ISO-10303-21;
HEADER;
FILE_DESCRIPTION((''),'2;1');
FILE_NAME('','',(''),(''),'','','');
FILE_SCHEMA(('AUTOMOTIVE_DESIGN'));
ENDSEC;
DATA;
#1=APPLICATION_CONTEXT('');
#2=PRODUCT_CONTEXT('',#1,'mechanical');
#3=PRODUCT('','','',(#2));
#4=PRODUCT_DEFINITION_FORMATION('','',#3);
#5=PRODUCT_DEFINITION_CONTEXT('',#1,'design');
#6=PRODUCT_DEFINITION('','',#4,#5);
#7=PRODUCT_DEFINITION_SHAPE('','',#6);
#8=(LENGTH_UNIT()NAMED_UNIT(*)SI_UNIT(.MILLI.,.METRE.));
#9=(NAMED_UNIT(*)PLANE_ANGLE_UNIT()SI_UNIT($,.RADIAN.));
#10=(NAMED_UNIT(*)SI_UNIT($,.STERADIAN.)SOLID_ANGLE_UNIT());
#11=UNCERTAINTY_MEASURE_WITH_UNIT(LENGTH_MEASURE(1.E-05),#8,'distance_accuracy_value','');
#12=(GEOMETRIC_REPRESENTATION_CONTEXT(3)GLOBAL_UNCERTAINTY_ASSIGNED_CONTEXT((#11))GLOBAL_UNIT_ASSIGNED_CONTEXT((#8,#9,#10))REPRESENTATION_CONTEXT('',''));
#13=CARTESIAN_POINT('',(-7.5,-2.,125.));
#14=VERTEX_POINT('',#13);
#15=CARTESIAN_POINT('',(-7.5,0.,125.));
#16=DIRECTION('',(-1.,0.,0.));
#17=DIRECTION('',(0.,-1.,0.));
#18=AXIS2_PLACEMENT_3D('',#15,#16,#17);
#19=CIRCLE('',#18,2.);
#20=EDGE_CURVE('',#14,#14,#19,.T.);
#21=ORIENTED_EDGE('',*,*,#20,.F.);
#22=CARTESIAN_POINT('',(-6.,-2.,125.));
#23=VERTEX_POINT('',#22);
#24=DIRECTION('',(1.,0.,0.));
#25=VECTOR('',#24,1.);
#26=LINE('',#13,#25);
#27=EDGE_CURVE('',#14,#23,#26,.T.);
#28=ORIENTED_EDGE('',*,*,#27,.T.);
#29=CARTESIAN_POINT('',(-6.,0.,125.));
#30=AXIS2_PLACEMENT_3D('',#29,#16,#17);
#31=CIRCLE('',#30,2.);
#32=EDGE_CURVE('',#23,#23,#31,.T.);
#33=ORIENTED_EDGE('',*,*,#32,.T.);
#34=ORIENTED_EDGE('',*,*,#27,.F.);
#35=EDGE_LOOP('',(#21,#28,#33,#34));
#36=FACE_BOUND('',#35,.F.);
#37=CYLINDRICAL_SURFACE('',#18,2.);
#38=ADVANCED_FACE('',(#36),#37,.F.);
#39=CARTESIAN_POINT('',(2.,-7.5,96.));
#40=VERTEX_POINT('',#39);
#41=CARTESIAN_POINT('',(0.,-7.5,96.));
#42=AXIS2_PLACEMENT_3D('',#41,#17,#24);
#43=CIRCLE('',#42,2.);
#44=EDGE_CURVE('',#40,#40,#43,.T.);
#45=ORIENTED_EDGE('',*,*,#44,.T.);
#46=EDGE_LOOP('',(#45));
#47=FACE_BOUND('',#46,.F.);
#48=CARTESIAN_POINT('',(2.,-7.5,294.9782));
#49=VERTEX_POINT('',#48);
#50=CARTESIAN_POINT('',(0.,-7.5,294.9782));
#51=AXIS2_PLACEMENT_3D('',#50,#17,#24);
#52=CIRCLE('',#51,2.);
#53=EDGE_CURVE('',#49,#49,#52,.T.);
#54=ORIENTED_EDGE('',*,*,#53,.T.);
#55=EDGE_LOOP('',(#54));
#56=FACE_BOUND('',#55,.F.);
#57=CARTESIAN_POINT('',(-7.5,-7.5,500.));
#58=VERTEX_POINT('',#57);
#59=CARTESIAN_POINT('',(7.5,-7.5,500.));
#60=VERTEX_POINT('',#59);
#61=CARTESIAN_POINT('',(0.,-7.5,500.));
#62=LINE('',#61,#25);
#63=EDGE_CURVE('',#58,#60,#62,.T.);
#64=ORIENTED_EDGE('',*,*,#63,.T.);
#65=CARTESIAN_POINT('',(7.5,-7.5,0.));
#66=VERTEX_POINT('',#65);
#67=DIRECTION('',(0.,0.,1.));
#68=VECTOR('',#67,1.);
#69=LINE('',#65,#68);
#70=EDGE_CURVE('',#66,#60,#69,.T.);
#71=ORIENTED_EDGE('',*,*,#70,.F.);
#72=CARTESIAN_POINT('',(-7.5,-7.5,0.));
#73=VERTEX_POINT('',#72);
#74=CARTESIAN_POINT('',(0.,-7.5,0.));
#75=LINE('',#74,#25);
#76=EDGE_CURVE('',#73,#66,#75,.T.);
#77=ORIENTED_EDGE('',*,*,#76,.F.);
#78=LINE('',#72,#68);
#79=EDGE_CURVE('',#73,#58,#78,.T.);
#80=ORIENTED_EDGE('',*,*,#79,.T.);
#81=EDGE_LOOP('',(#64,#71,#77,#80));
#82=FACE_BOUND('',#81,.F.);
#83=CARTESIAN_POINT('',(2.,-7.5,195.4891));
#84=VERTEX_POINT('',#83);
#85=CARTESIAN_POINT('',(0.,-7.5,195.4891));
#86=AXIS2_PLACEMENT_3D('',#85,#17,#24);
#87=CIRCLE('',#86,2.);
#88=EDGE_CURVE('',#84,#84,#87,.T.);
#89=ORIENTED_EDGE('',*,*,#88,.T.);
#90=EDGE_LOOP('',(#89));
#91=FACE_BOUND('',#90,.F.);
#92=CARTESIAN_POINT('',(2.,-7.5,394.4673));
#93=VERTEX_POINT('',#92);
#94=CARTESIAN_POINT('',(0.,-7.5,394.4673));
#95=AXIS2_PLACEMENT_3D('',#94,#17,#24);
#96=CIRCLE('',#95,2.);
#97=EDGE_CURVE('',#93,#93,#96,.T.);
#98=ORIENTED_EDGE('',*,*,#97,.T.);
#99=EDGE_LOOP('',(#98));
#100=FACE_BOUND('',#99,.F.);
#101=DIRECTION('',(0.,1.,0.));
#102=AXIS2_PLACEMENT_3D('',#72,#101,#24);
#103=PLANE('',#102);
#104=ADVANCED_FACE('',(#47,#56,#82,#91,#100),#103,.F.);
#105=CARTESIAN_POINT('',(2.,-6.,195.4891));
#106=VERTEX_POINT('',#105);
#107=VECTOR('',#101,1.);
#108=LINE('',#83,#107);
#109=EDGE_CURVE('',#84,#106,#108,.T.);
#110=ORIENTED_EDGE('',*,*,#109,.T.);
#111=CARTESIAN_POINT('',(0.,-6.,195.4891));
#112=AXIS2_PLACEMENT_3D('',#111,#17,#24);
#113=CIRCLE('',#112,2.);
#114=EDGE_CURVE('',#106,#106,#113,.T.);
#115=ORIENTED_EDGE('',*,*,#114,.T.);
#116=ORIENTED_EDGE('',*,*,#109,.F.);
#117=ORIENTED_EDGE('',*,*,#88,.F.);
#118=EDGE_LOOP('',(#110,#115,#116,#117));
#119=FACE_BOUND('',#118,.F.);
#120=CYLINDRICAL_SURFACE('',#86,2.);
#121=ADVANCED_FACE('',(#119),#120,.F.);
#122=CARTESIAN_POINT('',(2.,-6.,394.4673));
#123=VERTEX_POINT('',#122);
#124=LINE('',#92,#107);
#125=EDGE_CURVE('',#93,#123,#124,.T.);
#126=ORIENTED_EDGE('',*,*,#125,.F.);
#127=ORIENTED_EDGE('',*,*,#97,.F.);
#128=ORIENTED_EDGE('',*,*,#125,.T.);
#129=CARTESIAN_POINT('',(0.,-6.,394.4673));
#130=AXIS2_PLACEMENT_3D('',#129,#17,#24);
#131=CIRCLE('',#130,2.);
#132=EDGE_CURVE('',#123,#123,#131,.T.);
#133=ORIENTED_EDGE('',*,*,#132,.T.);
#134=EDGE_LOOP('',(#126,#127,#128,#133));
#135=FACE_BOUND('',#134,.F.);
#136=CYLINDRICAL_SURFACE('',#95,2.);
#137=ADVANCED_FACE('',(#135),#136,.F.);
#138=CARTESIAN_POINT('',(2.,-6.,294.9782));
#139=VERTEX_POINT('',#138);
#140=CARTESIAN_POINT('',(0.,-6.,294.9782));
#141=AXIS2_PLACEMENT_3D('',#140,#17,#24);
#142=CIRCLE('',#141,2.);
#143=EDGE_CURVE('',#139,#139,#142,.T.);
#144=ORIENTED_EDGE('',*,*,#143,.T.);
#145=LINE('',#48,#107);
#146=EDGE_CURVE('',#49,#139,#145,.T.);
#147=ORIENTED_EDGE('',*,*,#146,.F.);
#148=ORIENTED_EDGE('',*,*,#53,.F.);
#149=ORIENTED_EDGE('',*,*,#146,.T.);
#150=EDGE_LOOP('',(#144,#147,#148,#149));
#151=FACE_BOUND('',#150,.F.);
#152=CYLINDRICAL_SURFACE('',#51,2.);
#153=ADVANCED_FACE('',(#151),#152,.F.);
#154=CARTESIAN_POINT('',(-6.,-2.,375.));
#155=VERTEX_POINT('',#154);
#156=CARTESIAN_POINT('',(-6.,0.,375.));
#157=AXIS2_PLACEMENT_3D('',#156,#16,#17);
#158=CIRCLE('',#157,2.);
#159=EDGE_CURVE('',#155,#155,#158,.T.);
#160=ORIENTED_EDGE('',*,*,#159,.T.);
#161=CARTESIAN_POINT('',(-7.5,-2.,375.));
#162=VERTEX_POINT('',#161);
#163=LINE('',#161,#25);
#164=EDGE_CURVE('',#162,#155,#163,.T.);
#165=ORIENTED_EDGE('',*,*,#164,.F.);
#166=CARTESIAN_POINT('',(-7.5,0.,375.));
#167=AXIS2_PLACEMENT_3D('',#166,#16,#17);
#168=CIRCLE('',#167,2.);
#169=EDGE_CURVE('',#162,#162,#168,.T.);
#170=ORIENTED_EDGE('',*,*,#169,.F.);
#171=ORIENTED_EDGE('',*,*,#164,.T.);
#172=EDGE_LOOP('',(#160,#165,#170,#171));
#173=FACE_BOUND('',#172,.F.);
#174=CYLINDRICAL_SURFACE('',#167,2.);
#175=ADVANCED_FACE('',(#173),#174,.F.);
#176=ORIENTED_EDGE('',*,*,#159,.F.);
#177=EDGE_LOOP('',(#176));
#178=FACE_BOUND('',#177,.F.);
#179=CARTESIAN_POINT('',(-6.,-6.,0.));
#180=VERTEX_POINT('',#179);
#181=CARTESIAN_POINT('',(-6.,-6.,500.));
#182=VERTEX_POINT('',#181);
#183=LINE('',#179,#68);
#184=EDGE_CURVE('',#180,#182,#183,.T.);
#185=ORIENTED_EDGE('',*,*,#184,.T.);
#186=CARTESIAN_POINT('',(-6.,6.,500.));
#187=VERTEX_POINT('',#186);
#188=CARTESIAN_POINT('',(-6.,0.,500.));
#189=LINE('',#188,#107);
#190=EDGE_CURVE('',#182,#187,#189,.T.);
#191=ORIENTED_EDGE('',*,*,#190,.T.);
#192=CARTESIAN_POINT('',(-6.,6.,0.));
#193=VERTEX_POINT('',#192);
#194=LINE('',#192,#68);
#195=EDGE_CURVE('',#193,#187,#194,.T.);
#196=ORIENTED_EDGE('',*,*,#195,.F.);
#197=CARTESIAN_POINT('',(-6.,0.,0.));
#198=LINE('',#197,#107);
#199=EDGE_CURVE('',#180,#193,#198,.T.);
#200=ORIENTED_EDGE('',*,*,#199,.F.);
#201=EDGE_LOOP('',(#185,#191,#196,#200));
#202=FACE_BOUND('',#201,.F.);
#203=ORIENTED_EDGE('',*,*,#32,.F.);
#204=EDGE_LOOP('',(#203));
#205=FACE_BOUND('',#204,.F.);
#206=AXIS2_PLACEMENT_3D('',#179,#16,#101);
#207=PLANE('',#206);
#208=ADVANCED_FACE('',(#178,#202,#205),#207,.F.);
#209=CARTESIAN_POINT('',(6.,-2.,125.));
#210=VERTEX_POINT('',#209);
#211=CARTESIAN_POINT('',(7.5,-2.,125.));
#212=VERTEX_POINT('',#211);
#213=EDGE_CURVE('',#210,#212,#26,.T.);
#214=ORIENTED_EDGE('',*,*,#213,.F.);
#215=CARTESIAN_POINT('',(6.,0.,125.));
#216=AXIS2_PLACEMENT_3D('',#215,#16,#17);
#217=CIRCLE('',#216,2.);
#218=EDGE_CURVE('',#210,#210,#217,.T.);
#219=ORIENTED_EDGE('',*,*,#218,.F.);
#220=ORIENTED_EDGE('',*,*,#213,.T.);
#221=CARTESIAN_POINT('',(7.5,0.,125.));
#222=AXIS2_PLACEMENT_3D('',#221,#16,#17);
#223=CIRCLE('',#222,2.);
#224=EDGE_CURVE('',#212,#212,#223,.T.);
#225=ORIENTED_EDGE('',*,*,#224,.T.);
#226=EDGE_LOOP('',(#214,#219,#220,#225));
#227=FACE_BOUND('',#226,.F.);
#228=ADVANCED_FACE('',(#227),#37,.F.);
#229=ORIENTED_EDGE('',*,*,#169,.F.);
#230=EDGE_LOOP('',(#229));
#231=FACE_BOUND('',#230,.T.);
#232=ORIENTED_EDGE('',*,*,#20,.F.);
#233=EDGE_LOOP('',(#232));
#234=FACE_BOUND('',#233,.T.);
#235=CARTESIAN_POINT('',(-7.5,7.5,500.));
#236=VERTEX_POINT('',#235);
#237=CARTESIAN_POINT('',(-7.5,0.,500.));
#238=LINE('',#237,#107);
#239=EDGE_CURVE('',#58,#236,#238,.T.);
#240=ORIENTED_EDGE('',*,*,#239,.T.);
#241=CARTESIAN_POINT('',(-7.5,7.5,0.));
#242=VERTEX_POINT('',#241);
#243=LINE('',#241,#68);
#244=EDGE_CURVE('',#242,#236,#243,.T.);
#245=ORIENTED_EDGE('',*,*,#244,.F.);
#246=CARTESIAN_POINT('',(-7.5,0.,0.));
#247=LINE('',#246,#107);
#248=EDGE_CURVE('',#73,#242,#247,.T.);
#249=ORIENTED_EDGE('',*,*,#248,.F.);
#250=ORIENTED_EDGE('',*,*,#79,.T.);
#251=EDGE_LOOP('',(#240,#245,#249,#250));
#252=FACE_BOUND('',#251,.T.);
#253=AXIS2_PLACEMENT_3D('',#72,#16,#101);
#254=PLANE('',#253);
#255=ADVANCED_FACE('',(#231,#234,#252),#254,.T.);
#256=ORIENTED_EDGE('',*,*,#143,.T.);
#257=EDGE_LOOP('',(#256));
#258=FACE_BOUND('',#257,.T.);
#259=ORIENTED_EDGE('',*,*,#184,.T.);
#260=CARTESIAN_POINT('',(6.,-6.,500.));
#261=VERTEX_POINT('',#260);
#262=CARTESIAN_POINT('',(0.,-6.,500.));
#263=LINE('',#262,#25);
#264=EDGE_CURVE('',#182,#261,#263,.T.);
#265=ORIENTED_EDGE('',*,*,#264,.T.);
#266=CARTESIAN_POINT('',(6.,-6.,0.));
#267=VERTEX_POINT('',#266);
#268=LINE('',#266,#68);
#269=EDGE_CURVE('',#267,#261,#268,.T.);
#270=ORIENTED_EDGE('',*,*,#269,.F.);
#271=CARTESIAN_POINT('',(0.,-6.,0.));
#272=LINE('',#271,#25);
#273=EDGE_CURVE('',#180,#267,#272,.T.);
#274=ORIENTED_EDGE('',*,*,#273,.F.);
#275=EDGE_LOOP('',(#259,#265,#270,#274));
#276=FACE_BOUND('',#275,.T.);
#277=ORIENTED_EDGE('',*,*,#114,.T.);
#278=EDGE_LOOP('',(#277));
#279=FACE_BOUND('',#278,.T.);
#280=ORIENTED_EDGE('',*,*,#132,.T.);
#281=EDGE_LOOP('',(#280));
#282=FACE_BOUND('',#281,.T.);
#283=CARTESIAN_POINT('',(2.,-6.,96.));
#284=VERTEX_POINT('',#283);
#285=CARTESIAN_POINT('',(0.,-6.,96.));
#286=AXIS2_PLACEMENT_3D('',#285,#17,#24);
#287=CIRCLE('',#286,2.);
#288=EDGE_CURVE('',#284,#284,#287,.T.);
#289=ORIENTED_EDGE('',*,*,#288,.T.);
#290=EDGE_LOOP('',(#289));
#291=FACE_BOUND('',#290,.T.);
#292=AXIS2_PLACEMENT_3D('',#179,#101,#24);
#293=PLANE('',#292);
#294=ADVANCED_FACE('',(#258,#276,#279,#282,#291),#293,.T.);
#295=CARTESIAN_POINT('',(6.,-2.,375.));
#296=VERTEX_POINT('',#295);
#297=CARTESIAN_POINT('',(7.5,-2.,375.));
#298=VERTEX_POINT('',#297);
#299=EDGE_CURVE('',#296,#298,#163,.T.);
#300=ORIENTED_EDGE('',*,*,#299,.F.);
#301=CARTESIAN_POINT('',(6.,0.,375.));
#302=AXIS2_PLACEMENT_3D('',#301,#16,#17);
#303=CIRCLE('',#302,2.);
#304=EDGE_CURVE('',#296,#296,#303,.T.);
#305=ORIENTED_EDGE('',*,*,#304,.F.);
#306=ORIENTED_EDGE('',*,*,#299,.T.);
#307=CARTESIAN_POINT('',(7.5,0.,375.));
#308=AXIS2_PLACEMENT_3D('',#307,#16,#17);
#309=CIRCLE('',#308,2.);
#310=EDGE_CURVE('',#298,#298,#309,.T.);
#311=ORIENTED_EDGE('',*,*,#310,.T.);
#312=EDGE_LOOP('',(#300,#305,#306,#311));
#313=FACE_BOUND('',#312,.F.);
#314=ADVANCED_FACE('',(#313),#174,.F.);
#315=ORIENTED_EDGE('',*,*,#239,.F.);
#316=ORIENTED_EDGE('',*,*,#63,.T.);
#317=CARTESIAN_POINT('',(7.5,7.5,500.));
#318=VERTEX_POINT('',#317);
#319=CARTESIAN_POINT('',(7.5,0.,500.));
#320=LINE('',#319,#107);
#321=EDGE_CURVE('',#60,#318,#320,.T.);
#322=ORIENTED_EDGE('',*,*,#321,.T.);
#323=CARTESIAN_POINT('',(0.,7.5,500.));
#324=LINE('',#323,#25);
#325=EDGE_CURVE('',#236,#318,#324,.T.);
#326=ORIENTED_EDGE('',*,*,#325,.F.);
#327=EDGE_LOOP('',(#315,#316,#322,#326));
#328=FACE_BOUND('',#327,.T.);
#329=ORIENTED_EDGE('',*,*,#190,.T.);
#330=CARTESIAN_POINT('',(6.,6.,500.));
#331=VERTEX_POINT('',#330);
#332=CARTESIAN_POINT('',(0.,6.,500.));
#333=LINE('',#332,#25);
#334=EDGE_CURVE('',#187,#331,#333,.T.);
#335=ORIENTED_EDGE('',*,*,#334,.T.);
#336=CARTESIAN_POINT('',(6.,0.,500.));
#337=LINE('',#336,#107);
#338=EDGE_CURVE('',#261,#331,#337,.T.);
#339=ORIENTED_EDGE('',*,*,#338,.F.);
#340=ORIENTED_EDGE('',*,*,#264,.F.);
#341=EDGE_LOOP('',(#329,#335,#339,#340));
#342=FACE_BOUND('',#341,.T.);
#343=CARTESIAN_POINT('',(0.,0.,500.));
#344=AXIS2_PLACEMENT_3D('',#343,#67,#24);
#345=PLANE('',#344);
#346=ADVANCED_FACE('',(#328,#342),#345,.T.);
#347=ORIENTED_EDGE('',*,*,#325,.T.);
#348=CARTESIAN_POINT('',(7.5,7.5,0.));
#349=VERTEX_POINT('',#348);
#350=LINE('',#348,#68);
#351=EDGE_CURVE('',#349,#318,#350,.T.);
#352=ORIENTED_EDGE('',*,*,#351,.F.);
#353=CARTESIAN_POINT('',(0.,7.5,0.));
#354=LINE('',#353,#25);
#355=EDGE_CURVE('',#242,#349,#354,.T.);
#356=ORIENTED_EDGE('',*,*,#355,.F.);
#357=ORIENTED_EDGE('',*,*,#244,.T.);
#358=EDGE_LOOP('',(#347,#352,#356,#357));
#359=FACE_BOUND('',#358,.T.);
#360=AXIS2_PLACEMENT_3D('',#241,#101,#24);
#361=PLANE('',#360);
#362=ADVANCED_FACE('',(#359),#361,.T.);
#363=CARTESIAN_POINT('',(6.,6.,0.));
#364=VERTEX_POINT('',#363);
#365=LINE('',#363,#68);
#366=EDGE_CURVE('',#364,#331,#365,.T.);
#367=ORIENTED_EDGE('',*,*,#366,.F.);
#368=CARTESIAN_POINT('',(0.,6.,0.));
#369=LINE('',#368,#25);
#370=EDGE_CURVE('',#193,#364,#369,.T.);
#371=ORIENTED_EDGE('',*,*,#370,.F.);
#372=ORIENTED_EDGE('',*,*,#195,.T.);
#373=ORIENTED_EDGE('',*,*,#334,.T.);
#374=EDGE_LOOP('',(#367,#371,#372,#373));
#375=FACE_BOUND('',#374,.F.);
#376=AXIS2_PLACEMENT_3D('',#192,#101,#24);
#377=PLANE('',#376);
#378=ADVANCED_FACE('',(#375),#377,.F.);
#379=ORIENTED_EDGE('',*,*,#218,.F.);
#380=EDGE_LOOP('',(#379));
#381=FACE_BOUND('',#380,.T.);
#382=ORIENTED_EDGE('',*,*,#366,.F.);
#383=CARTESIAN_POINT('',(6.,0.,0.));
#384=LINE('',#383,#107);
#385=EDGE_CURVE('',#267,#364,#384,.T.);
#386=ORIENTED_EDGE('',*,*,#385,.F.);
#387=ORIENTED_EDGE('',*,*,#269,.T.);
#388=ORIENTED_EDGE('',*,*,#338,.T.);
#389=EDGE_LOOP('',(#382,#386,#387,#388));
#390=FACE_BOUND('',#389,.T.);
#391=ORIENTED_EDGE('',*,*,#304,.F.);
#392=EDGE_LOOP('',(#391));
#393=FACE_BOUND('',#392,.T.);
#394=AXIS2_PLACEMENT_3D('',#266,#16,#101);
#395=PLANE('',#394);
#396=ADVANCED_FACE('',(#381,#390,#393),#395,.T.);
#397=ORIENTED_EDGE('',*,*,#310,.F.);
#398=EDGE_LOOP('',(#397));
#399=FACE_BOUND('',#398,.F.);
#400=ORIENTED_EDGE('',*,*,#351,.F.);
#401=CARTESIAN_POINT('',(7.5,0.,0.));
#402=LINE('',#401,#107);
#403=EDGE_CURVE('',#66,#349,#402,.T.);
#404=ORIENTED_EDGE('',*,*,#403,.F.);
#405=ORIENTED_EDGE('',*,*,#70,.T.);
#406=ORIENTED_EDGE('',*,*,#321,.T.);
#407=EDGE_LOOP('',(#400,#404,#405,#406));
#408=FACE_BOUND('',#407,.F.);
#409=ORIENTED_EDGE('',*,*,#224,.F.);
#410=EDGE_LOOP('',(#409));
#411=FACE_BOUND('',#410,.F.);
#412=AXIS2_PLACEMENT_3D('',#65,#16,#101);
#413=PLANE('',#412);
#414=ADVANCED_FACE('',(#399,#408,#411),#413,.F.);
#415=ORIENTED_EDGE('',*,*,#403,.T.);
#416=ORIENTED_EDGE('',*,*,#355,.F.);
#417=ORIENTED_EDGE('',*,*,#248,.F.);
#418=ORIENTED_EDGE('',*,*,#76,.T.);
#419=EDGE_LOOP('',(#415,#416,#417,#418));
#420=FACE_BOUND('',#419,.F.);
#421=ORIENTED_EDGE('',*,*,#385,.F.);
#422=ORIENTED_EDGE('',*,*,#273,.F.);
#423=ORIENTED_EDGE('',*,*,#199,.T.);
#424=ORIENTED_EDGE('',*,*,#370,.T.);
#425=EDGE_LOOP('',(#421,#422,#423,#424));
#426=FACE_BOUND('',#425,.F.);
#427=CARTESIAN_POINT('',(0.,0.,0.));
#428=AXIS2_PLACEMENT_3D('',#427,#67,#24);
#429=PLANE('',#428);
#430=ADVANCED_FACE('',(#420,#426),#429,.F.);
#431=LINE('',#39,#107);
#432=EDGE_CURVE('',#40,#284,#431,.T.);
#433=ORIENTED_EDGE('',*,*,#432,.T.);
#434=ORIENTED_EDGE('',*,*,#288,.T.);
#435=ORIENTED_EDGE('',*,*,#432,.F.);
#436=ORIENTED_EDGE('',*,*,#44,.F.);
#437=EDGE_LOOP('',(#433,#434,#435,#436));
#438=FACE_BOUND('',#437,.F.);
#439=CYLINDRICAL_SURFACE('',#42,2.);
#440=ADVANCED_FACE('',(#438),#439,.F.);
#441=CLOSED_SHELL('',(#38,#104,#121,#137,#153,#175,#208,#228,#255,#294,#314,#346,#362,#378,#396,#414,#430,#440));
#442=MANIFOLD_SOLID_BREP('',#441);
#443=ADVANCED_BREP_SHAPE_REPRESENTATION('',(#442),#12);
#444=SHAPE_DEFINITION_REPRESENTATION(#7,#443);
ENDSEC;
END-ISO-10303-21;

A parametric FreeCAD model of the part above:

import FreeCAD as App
import Part
import Sketcher

V = App.Vector


def add_polygon(sketch, points):
    """Adds a closed chain of lines whose ends are joined by coincident constraints."""
    first, n = sketch.GeometryCount, len(points)
    for a, b in zip(points, points[1:] + points[:1]):
        sketch.addGeometry(Part.LineSegment(App.Vector(*a, 0), App.Vector(*b, 0)), False)
    for i in range(n):
        sketch.addConstraint(Sketcher.Constraint("Coincident", first + i, 2, first + (i + 1) % n, 1))

doc = App.newDocument("Part")
body = doc.addObject("PartDesign::Body", "Body")

sketch1 = body.newObject("Sketcher::SketchObject", "Sketch")
sketch1.AttachmentSupport = (doc.getObject("XY_Plane"), [""])
sketch1.MapMode = "FlatFace"
add_polygon(sketch1, [(-8, 8), (-8, -8), (8, -8), (8, 8)])
add_polygon(sketch1, [(6, -6), (-6, -6), (-6, 6), (6, 6)])
sketch1.addConstraint([
    Sketcher.Constraint("Vertical", 0),
    Sketcher.Constraint("Horizontal", 1),
    Sketcher.Constraint("Vertical", 2),
    Sketcher.Constraint("Horizontal", 3),
    Sketcher.Constraint("Horizontal", 4),
    Sketcher.Constraint("Vertical", 5),
    Sketcher.Constraint("Horizontal", 6),
    Sketcher.Constraint("Vertical", 7),
    Sketcher.Constraint("Symmetric", 0, 2, 2, 2, -1, 1),
    Sketcher.Constraint("Symmetric", 4, 2, 6, 2, -1, 1),
    Sketcher.Constraint("Equal", 3, 0),
    Sketcher.Constraint("Equal", 6, 5),
    Sketcher.Constraint("DistanceX", 1, 1, 1, 2, 15.0),
    Sketcher.Constraint("DistanceX", 4, 2, 4, 1, 12.0),
])
pad1 = body.newObject("PartDesign::Pad", "Pad")
pad1.Profile = sketch1
pad1.Length = 500

sketch2 = body.newObject("Sketcher::SketchObject", "Sketch001")
sketch2.AttachmentSupport = (doc.getObject("XZ_Plane"), [""])
sketch2.MapMode = "FlatFace"
sketch2.AttachmentOffset = App.Placement(V(0, 0, 7.5), App.Rotation())
sketch2.addGeometry([
    Part.Circle(V(0, 195.5, 0), V(0, 0, 1), 2),
    Part.Circle(V(0, 96, 0), V(0, 0, 1), 2),
    Part.Circle(V(0, 295, 0), V(0, 0, 1), 2),
    Part.Circle(V(0, 394.5, 0), V(0, 0, 1), 2),
], False)
sketch2.addConstraint([
    Sketcher.Constraint("Equal", 0, 1),
    Sketcher.Constraint("Equal", 1, 2),
    Sketcher.Constraint("Equal", 2, 3),
    Sketcher.Constraint("PointOnObject", 0, 3, -2),
    Sketcher.Constraint("PointOnObject", 1, 3, -2),
    Sketcher.Constraint("PointOnObject", 2, 3, -2),
    Sketcher.Constraint("PointOnObject", 3, 3, -2),
    Sketcher.Constraint("Diameter", 0, 4.0),
    Sketcher.Constraint("DistanceY", -1, 1, 1, 3, 96.0),
    Sketcher.Constraint("DistanceY", -1, 1, 0, 3, 195.4891),
    Sketcher.Constraint("DistanceY", -1, 1, 2, 3, 294.9782),
    Sketcher.Constraint("DistanceY", -1, 1, 3, 3, 394.4673),
])
pocket1 = body.newObject("PartDesign::Pocket", "Pocket")
pocket1.Profile = sketch2
pocket1.Length = 5

sketch3 = body.newObject("Sketcher::SketchObject", "Sketch002")
sketch3.AttachmentSupport = (doc.getObject("YZ_Plane"), [""])
sketch3.MapMode = "FlatFace"
sketch3.AttachmentOffset = App.Placement(V(0, 0, -7.5), App.Rotation())
sketch3.addGeometry([
    Part.Circle(V(0, 375, 0), V(0, 0, 1), 2),
    Part.Circle(V(0, 125, 0), V(0, 0, 1), 2),
], False)
sketch3.addConstraint([
    Sketcher.Constraint("Equal", 0, 1),
    Sketcher.Constraint("PointOnObject", 0, 3, -2),
    Sketcher.Constraint("PointOnObject", 1, 3, -2),
    Sketcher.Constraint("Diameter", 0, 4.0),
    Sketcher.Constraint("DistanceY", -1, 1, 0, 3, 375.0),
    Sketcher.Constraint("DistanceY", -1, 1, 1, 3, 125.0),
])
pocket2 = body.newObject("PartDesign::Pocket", "Pocket001")
pocket2.Profile = sketch3
pocket2.Length = 30
pocket2.Reversed = True

doc.recompute()
